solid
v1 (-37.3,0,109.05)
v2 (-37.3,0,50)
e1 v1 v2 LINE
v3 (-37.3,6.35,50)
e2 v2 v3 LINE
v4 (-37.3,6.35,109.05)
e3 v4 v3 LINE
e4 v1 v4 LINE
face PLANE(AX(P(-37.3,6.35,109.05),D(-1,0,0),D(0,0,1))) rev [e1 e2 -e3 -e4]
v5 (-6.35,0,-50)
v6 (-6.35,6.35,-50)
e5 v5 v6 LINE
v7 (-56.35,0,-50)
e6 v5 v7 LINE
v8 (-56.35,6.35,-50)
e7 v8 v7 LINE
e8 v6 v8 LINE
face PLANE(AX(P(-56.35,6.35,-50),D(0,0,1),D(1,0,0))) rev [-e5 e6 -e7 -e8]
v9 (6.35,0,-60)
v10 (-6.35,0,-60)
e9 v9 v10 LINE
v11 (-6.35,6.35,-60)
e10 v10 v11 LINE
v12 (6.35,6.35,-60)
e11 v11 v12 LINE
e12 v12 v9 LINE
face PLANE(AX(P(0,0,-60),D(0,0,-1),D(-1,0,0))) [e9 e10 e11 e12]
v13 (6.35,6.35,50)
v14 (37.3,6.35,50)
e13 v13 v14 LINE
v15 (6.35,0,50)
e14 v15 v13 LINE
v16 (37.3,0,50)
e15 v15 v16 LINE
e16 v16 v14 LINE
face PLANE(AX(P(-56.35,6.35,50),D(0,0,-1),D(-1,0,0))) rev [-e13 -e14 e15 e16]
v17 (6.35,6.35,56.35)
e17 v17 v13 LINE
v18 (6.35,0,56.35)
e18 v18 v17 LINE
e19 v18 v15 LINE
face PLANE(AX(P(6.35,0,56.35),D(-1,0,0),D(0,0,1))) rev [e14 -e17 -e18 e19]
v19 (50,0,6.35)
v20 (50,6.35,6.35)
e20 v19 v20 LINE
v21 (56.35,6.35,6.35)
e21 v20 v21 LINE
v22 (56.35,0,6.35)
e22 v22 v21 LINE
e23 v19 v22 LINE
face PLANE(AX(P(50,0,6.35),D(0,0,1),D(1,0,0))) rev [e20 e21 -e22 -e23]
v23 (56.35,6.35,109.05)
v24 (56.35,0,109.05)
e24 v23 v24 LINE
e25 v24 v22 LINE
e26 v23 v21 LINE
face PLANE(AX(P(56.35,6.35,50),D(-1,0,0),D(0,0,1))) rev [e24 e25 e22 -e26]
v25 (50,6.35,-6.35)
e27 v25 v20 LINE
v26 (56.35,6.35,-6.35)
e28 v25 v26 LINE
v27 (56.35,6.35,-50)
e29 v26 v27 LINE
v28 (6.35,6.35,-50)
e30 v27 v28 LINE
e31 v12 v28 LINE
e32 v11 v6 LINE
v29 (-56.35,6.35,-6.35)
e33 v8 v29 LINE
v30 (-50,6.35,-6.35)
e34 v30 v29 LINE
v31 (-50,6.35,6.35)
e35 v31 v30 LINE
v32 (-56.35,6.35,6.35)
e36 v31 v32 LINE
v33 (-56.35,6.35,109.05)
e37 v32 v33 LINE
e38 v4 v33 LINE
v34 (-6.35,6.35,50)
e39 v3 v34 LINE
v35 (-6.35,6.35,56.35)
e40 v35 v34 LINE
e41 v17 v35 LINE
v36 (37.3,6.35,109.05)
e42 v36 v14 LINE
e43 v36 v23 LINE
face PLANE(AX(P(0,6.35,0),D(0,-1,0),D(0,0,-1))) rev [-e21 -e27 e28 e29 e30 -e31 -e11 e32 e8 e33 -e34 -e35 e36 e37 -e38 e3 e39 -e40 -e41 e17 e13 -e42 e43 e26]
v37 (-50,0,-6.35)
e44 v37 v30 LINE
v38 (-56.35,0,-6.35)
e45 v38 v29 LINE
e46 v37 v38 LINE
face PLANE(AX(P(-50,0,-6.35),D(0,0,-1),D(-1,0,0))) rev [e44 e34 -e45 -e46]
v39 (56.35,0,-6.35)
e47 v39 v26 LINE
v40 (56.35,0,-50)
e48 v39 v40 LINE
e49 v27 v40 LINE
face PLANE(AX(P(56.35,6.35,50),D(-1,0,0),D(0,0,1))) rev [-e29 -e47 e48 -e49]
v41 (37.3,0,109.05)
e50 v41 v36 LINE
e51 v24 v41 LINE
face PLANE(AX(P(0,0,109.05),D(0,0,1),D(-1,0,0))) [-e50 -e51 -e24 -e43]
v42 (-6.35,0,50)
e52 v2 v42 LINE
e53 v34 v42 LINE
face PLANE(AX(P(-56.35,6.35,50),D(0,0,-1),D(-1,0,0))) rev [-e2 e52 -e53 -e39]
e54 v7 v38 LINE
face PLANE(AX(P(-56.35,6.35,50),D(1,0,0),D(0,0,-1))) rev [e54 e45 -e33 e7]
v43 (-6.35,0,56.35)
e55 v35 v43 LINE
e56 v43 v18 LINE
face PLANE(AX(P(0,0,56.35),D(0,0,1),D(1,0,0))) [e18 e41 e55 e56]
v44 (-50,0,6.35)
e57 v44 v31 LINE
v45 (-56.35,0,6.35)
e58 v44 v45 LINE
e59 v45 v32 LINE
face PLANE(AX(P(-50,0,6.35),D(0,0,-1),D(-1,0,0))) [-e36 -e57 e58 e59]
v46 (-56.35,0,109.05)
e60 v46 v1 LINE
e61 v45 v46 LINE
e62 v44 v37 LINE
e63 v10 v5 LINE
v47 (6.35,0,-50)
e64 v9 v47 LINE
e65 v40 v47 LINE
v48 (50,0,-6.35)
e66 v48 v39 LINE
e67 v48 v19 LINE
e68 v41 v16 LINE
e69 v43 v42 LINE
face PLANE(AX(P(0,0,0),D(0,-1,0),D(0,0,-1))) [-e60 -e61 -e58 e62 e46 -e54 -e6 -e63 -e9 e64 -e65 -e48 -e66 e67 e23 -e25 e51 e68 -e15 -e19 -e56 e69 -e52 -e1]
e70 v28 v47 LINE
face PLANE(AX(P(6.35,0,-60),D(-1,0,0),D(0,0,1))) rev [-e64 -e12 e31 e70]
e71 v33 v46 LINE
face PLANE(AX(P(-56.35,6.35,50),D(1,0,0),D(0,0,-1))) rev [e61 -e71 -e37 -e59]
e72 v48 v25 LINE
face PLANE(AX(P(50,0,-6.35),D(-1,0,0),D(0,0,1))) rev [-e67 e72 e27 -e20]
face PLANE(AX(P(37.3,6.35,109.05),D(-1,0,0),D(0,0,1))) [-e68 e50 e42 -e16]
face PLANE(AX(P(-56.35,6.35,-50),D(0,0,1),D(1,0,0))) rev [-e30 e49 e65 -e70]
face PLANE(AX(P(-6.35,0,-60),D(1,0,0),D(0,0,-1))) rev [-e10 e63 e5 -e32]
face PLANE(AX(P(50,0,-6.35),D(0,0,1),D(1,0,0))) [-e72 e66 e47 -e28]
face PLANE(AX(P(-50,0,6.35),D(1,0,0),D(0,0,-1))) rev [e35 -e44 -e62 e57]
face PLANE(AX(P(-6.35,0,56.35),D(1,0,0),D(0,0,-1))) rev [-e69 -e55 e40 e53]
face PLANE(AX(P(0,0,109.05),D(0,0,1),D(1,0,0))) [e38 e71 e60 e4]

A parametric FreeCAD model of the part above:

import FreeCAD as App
import Part
import Sketcher
Q = App.Units.Quantity


def add_polygon(sketch, points):
    """Adds a closed chain of lines whose ends are joined by coincident constraints."""
    first, n = sketch.GeometryCount, len(points)
    for a, b in zip(points, points[1:] + points[:1]):
        sketch.addGeometry(Part.LineSegment(App.Vector(*a, 0), App.Vector(*b, 0)), False)
    for i in range(n):
        sketch.addConstraint(Sketcher.Constraint("Coincident", first + i, 2, first + (i + 1) % n, 1))

doc = App.newDocument("Part")
body = doc.addObject("PartDesign::Body", "Body")

# Sketch on XZ plane
sketch1 = doc.addObject("Sketcher::SketchObject", "Sketch")
body.addObject(sketch1)
sketch1.AttachmentSupport = (doc.XZ_Plane, [""])
sketch1.MapMode = "FlatFace"
add_polygon(sketch1, [(-56.35, -50), (-56.35, 50), (56.35, 50), (56.35, -50)])  # lines 0-3
sketch1.addConstraint([
    Sketcher.Constraint("Vertical", 0),
    Sketcher.Constraint("Horizontal", 1),
    Sketcher.Constraint("Vertical", 2),
    Sketcher.Constraint("Horizontal", 3),
    Sketcher.Constraint("Symmetric", 0, 2, 2, 2, -1, 1),
    Sketcher.Constraint("DistanceY", 0, 1, 0, 2, Q("100 mm")),
    Sketcher.Constraint("DistanceX", 1, 1, 1, 2, Q("112.7 mm")),
])
pad1 = doc.addObject("PartDesign::Pad", "Pad")
body.addObject(pad1)
pad1.Profile = sketch1
pad1.Length = 6.35
pad1.Reversed = True

# Sketch on XZ plane
sketch2 = doc.addObject("Sketcher::SketchObject", "Sketch001")
body.addObject(sketch2)
sketch2.AttachmentSupport = (doc.XZ_Plane, [""])
sketch2.MapMode = "FlatFace"
sketch2.AttachmentOffset = App.Placement(App.Vector(0, 0, -6.35), App.Rotation())
add_polygon(sketch2, [(50, -6.35), (50, 6.35), (56.35, 6.35), (56.35, -6.35)])  # lines 0-3
sketch2.addConstraint([
    Sketcher.Constraint("Vertical", 0),
    Sketcher.Constraint("Horizontal", 1),
    Sketcher.Constraint("Vertical", 2),
    Sketcher.Constraint("Horizontal", 3),
    Sketcher.Constraint("DistanceY", 0, 1, 0, 2, Q("12.7 mm")),
    Sketcher.Constraint("DistanceX", -1, 1, 0, 2, Q("50 mm")),
    Sketcher.Constraint("DistanceX", 1, 1, 1, 2, Q("6.35 mm")),
    Sketcher.Constraint("DistanceY", -1, 1, 0, 2, Q("6.35 mm")),
])
pocket1 = doc.addObject("PartDesign::Pocket", "Pocket")
body.addObject(pocket1)
pocket1.Profile = sketch2
pocket1.Type = "ThroughAll"
pocket1.Reversed = True
doc.recompute()

polarpattern = doc.addObject("PartDesign::PolarPattern", "PolarPattern")
body.addObject(polarpattern)
polarpattern.Originals = [pocket1]
polarpattern.Axis = (doc.Y_Axis, [""])
polarpattern.Angle = 360
polarpattern.Occurrences = 2
body.Tip = polarpattern

# Sketch on XY plane
sketch3 = doc.addObject("Sketcher::SketchObject", "Sketch002")
body.addObject(sketch3)
sketch3.AttachmentSupport = (doc.XY_Plane, [""])
sketch3.MapMode = "FlatFace"
sketch3.AttachmentOffset = App.Placement(App.Vector(0, 0, 50), App.Rotation())
add_polygon(sketch3, [(-6.35, 6.35), (-6.35, 0), (6.35, 0), (6.35, 6.35)])  # lines 0-3
sketch3.addConstraint([
    Sketcher.Constraint("Vertical", 0),
    Sketcher.Constraint("Horizontal", 1),
    Sketcher.Constraint("Vertical", 2),
    Sketcher.Constraint("Horizontal", 3),
    Sketcher.Constraint("Symmetric", 0, 2, 1, 2, -1, 1),
    Sketcher.Constraint("DistanceX", 1, 1, 1, 2, Q("12.7 mm")),
    Sketcher.Constraint("DistanceY", 0, 2, 0, 1, Q("6.35 mm")),
])
pad2 = doc.addObject("PartDesign::Pad", "Pad001")
body.addObject(pad2)
pad2.Profile = sketch3
pad2.Length = 6.35

# Sketch on XY plane
sketch4 = doc.addObject("Sketcher::SketchObject", "Sketch003")
body.addObject(sketch4)
sketch4.AttachmentSupport = (doc.XY_Plane, [""])
sketch4.MapMode = "FlatFace"
sketch4.AttachmentOffset = App.Placement(App.Vector(0, 0, 50), App.Rotation())
add_polygon(sketch4, [(-56.35, 6.35), (-56.35, 0), (-37.3, 0), (-37.3, 6.35)])  # lines 0-3
sketch4.addConstraint([
    Sketcher.Constraint("Vertical", 0),
    Sketcher.Constraint("Horizontal", 1),
    Sketcher.Constraint("Vertical", 2),
    Sketcher.Constraint("Horizontal", 3),
    Sketcher.Constraint("PointOnObject", 0, 2, -1),
    Sketcher.Constraint("DistanceX", 1, 1, 1, 2, Q("19.05 mm")),
    Sketcher.Constraint("DistanceY", 0, 2, 0, 1, Q("6.35 mm")),
    Sketcher.Constraint("DistanceX", 1, 2, -1, 1, Q("37.3 mm")),
])
pad3 = doc.addObject("PartDesign::Pad", "Pad002")
body.addObject(pad3)
pad3.Profile = sketch4
pad3.Length = 59.05
doc.recompute()

mirrored = doc.addObject("PartDesign::Mirrored", "Mirrored")
body.addObject(mirrored)
mirrored.Originals = [pad3]
mirrored.MirrorPlane = (doc.YZ_Plane, [""])
body.Tip = mirrored

# Sketch on XY plane
sketch5 = doc.addObject("Sketcher::SketchObject", "Sketch004")
body.addObject(sketch5)
sketch5.AttachmentSupport = (doc.XY_Plane, [""])
sketch5.MapMode = "FlatFace"
sketch5.AttachmentOffset = App.Placement(App.Vector(0, 0, -50), App.Rotation())
add_polygon(sketch5, [(6.35, 6.35), (6.35, 0), (-6.35, 0), (-6.35, 6.35)])  # lines 0-3
sketch5.addConstraint([
    Sketcher.Constraint("Vertical", 0),
    Sketcher.Constraint("Horizontal", 1),
    Sketcher.Constraint("Vertical", 2),
    Sketcher.Constraint("Horizontal", 3),
    Sketcher.Constraint("Symmetric", 0, 2, 1, 2, -1, 1),
    Sketcher.Constraint("DistanceX", 1, 2, 1, 1, Q("12.7 mm")),
    Sketcher.Constraint("DistanceY", 0, 2, 0, 1, Q("6.35 mm")),
])
pad4 = doc.addObject("PartDesign::Pad", "Pad003")
body.addObject(pad4)
pad4.Profile = sketch5
pad4.Length = 10
pad4.Reversed = True

doc.recompute()
